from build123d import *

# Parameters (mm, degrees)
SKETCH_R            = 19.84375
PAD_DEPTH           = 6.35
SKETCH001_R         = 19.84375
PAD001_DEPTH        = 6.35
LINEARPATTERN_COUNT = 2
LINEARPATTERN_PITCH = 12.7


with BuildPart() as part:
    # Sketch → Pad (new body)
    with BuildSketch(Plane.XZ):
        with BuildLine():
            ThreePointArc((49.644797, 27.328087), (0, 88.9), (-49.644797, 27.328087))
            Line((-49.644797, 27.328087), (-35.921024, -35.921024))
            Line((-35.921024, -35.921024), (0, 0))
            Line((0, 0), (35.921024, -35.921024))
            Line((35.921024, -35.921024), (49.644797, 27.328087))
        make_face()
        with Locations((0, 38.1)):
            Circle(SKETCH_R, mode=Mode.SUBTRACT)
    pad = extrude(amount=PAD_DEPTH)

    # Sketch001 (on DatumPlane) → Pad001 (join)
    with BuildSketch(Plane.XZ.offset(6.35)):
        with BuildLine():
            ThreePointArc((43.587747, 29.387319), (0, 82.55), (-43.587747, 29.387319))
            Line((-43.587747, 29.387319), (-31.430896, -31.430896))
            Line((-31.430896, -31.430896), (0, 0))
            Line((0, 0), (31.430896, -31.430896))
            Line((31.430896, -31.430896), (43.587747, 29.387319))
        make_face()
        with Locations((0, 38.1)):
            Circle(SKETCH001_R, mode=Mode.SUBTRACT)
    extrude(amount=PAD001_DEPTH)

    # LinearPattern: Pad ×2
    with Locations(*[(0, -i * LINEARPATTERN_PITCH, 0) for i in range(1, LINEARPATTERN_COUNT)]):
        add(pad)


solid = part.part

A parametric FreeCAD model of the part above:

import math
import FreeCAD as App
import Part
import Sketcher
from FreeCAD import Vector
Q = App.Units.Quantity

doc = App.newDocument("Part")
body = doc.addObject("PartDesign::Body", "Body")

# Sketch on XZ plane
sketch1 = body.newObject("Sketcher::SketchObject", "Sketch")
sketch1.AttachmentSupport = (doc.getObject("XZ_Plane"), [""])
sketch1.MapMode = "FlatFace"
sketch1.addGeometry(Part.ArcOfCircle(Part.Circle(Vector(0, 38, 0), Vector(0, 0, 1), 51), math.radians(-12), math.radians(192)), False)
sketch1.addGeometry(Part.LineSegment(Vector(-50, 27, 0), Vector(-36, -36, 0)), False)
sketch1.addGeometry(Part.LineSegment(Vector(-36, -36, 0), Vector(0, 0, 0)), False)
sketch1.addGeometry(Part.LineSegment(Vector(0, 0, 0), Vector(36, -36, 0)), False)
sketch1.addGeometry(Part.LineSegment(Vector(36, -36, 0), Vector(50, 27, 0)), False)
sketch1.addGeometry(Part.Circle(Vector(0, 38, 0), Vector(0, 0, 1), 20), False)
sketch1.addConstraint(Sketcher.Constraint("Tangent", 0, 2, 1, 1))
sketch1.addConstraint(Sketcher.Constraint("Coincident", 1, 2, 2, 1))
sketch1.addConstraint(Sketcher.Constraint("Coincident", 2, 2, 3, 1))
sketch1.addConstraint(Sketcher.Constraint("Coincident", 3, 2, 4, 1))
sketch1.addConstraint(Sketcher.Constraint("Tangent", 4, 2, 0, 1))
sketch1.addConstraint(Sketcher.Constraint("Coincident", 2, 2, -1, 1))
sketch1.addConstraint(Sketcher.Constraint("Coincident", 5, 3, 0, 3))
sketch1.addConstraint(Sketcher.Constraint("Symmetric", 1, 2, 3, 2, -2))
sketch1.addConstraint(Sketcher.Constraint("PointOnObject", 0, 3, -2))
sketch1.addConstraint(Sketcher.Constraint("Perpendicular", 2, 3))
sketch1.addConstraint(Sketcher.Constraint("Radius", 0, Q("2 in")))
sketch1.addConstraint(Sketcher.Constraint("Distance", 2, Q("2 in")))
sketch1.addConstraint(Sketcher.Constraint("Diameter", 5, Q("1.5625 in")))
sketch1.addConstraint(Sketcher.Constraint("DistanceY", -1, 1, 0, 3, Q("1.5 in")))
pad1 = body.newObject("PartDesign::Pad", "Pad")
pad1.Profile = sketch1
pad1.Length = Q("0.25 in")

# Sketch on XZ plane
sketch2 = body.newObject("Sketcher::SketchObject", "Sketch001")
sketch2.AttachmentSupport = (doc.getObject("XZ_Plane"), [""])
sketch2.MapMode = "FlatFace"
sketch2.AttachmentOffset = App.Placement(Vector(0, 0, 0.25 * 25.4), App.Rotation())
sketch2.addGeometry(Part.ArcOfCircle(Part.Circle(Vector(0, 38, 0), Vector(0, 0, 1), 44), math.radians(-11), math.radians(191)), False)
sketch2.addGeometry(Part.LineSegment(Vector(-44, 29, 0), Vector(-31, -31, 0)), False)
sketch2.addGeometry(Part.LineSegment(Vector(-31, -31, 0), Vector(0, 0, 0)), False)
sketch2.addGeometry(Part.LineSegment(Vector(0, 0, 0), Vector(31, -31, 0)), False)
sketch2.addGeometry(Part.LineSegment(Vector(31, -31, 0), Vector(44, 29, 0)), False)
sketch2.addGeometry(Part.Circle(Vector(0, 38, 0), Vector(0, 0, 1), 20), False)
sketch2.addConstraint(Sketcher.Constraint("Tangent", 0, 2, 1, 1))
sketch2.addConstraint(Sketcher.Constraint("Coincident", 1, 2, 2, 1))
sketch2.addConstraint(Sketcher.Constraint("Coincident", 2, 2, 3, 1))
sketch2.addConstraint(Sketcher.Constraint("Coincident", 3, 2, 4, 1))
sketch2.addConstraint(Sketcher.Constraint("Tangent", 4, 2, 0, 1))
sketch2.addConstraint(Sketcher.Constraint("Coincident", 2, 2, -1, 1))
sketch2.addConstraint(Sketcher.Constraint("Coincident", 5, 3, 0, 3))
sketch2.addConstraint(Sketcher.Constraint("Symmetric", 1, 2, 3, 2, -2))
sketch2.addConstraint(Sketcher.Constraint("PointOnObject", 0, 3, -2))
sketch2.addConstraint(Sketcher.Constraint("Perpendicular", 2, 3))
sketch2.addConstraint(Sketcher.Constraint("Radius", 0, Q("1.75 in")))
sketch2.addConstraint(Sketcher.Constraint("Diameter", 5, Q("1.5625 in")))
sketch2.addConstraint(Sketcher.Constraint("DistanceY", -1, 1, 0, 3, Q("1.5 in")))
sketch2.addConstraint(Sketcher.Constraint("Distance", 2, Q("1.75 in")))
pad2 = body.newObject("PartDesign::Pad", "Pad001")
pad2.Profile = sketch2
pad2.Length = Q("0.25 in")
doc.recompute()

linearpattern = body.newObject("PartDesign::LinearPattern", "LinearPattern")
linearpattern.Originals = [pad1]
linearpattern.Direction = (doc.getObject("Y_Axis"), [""])
linearpattern.Mode = "offset"
linearpattern.Offset = Q("0.5 in")
linearpattern.Occurrences = 2
linearpattern.Reversed = True
body.Tip = linearpattern

doc.recompute()
